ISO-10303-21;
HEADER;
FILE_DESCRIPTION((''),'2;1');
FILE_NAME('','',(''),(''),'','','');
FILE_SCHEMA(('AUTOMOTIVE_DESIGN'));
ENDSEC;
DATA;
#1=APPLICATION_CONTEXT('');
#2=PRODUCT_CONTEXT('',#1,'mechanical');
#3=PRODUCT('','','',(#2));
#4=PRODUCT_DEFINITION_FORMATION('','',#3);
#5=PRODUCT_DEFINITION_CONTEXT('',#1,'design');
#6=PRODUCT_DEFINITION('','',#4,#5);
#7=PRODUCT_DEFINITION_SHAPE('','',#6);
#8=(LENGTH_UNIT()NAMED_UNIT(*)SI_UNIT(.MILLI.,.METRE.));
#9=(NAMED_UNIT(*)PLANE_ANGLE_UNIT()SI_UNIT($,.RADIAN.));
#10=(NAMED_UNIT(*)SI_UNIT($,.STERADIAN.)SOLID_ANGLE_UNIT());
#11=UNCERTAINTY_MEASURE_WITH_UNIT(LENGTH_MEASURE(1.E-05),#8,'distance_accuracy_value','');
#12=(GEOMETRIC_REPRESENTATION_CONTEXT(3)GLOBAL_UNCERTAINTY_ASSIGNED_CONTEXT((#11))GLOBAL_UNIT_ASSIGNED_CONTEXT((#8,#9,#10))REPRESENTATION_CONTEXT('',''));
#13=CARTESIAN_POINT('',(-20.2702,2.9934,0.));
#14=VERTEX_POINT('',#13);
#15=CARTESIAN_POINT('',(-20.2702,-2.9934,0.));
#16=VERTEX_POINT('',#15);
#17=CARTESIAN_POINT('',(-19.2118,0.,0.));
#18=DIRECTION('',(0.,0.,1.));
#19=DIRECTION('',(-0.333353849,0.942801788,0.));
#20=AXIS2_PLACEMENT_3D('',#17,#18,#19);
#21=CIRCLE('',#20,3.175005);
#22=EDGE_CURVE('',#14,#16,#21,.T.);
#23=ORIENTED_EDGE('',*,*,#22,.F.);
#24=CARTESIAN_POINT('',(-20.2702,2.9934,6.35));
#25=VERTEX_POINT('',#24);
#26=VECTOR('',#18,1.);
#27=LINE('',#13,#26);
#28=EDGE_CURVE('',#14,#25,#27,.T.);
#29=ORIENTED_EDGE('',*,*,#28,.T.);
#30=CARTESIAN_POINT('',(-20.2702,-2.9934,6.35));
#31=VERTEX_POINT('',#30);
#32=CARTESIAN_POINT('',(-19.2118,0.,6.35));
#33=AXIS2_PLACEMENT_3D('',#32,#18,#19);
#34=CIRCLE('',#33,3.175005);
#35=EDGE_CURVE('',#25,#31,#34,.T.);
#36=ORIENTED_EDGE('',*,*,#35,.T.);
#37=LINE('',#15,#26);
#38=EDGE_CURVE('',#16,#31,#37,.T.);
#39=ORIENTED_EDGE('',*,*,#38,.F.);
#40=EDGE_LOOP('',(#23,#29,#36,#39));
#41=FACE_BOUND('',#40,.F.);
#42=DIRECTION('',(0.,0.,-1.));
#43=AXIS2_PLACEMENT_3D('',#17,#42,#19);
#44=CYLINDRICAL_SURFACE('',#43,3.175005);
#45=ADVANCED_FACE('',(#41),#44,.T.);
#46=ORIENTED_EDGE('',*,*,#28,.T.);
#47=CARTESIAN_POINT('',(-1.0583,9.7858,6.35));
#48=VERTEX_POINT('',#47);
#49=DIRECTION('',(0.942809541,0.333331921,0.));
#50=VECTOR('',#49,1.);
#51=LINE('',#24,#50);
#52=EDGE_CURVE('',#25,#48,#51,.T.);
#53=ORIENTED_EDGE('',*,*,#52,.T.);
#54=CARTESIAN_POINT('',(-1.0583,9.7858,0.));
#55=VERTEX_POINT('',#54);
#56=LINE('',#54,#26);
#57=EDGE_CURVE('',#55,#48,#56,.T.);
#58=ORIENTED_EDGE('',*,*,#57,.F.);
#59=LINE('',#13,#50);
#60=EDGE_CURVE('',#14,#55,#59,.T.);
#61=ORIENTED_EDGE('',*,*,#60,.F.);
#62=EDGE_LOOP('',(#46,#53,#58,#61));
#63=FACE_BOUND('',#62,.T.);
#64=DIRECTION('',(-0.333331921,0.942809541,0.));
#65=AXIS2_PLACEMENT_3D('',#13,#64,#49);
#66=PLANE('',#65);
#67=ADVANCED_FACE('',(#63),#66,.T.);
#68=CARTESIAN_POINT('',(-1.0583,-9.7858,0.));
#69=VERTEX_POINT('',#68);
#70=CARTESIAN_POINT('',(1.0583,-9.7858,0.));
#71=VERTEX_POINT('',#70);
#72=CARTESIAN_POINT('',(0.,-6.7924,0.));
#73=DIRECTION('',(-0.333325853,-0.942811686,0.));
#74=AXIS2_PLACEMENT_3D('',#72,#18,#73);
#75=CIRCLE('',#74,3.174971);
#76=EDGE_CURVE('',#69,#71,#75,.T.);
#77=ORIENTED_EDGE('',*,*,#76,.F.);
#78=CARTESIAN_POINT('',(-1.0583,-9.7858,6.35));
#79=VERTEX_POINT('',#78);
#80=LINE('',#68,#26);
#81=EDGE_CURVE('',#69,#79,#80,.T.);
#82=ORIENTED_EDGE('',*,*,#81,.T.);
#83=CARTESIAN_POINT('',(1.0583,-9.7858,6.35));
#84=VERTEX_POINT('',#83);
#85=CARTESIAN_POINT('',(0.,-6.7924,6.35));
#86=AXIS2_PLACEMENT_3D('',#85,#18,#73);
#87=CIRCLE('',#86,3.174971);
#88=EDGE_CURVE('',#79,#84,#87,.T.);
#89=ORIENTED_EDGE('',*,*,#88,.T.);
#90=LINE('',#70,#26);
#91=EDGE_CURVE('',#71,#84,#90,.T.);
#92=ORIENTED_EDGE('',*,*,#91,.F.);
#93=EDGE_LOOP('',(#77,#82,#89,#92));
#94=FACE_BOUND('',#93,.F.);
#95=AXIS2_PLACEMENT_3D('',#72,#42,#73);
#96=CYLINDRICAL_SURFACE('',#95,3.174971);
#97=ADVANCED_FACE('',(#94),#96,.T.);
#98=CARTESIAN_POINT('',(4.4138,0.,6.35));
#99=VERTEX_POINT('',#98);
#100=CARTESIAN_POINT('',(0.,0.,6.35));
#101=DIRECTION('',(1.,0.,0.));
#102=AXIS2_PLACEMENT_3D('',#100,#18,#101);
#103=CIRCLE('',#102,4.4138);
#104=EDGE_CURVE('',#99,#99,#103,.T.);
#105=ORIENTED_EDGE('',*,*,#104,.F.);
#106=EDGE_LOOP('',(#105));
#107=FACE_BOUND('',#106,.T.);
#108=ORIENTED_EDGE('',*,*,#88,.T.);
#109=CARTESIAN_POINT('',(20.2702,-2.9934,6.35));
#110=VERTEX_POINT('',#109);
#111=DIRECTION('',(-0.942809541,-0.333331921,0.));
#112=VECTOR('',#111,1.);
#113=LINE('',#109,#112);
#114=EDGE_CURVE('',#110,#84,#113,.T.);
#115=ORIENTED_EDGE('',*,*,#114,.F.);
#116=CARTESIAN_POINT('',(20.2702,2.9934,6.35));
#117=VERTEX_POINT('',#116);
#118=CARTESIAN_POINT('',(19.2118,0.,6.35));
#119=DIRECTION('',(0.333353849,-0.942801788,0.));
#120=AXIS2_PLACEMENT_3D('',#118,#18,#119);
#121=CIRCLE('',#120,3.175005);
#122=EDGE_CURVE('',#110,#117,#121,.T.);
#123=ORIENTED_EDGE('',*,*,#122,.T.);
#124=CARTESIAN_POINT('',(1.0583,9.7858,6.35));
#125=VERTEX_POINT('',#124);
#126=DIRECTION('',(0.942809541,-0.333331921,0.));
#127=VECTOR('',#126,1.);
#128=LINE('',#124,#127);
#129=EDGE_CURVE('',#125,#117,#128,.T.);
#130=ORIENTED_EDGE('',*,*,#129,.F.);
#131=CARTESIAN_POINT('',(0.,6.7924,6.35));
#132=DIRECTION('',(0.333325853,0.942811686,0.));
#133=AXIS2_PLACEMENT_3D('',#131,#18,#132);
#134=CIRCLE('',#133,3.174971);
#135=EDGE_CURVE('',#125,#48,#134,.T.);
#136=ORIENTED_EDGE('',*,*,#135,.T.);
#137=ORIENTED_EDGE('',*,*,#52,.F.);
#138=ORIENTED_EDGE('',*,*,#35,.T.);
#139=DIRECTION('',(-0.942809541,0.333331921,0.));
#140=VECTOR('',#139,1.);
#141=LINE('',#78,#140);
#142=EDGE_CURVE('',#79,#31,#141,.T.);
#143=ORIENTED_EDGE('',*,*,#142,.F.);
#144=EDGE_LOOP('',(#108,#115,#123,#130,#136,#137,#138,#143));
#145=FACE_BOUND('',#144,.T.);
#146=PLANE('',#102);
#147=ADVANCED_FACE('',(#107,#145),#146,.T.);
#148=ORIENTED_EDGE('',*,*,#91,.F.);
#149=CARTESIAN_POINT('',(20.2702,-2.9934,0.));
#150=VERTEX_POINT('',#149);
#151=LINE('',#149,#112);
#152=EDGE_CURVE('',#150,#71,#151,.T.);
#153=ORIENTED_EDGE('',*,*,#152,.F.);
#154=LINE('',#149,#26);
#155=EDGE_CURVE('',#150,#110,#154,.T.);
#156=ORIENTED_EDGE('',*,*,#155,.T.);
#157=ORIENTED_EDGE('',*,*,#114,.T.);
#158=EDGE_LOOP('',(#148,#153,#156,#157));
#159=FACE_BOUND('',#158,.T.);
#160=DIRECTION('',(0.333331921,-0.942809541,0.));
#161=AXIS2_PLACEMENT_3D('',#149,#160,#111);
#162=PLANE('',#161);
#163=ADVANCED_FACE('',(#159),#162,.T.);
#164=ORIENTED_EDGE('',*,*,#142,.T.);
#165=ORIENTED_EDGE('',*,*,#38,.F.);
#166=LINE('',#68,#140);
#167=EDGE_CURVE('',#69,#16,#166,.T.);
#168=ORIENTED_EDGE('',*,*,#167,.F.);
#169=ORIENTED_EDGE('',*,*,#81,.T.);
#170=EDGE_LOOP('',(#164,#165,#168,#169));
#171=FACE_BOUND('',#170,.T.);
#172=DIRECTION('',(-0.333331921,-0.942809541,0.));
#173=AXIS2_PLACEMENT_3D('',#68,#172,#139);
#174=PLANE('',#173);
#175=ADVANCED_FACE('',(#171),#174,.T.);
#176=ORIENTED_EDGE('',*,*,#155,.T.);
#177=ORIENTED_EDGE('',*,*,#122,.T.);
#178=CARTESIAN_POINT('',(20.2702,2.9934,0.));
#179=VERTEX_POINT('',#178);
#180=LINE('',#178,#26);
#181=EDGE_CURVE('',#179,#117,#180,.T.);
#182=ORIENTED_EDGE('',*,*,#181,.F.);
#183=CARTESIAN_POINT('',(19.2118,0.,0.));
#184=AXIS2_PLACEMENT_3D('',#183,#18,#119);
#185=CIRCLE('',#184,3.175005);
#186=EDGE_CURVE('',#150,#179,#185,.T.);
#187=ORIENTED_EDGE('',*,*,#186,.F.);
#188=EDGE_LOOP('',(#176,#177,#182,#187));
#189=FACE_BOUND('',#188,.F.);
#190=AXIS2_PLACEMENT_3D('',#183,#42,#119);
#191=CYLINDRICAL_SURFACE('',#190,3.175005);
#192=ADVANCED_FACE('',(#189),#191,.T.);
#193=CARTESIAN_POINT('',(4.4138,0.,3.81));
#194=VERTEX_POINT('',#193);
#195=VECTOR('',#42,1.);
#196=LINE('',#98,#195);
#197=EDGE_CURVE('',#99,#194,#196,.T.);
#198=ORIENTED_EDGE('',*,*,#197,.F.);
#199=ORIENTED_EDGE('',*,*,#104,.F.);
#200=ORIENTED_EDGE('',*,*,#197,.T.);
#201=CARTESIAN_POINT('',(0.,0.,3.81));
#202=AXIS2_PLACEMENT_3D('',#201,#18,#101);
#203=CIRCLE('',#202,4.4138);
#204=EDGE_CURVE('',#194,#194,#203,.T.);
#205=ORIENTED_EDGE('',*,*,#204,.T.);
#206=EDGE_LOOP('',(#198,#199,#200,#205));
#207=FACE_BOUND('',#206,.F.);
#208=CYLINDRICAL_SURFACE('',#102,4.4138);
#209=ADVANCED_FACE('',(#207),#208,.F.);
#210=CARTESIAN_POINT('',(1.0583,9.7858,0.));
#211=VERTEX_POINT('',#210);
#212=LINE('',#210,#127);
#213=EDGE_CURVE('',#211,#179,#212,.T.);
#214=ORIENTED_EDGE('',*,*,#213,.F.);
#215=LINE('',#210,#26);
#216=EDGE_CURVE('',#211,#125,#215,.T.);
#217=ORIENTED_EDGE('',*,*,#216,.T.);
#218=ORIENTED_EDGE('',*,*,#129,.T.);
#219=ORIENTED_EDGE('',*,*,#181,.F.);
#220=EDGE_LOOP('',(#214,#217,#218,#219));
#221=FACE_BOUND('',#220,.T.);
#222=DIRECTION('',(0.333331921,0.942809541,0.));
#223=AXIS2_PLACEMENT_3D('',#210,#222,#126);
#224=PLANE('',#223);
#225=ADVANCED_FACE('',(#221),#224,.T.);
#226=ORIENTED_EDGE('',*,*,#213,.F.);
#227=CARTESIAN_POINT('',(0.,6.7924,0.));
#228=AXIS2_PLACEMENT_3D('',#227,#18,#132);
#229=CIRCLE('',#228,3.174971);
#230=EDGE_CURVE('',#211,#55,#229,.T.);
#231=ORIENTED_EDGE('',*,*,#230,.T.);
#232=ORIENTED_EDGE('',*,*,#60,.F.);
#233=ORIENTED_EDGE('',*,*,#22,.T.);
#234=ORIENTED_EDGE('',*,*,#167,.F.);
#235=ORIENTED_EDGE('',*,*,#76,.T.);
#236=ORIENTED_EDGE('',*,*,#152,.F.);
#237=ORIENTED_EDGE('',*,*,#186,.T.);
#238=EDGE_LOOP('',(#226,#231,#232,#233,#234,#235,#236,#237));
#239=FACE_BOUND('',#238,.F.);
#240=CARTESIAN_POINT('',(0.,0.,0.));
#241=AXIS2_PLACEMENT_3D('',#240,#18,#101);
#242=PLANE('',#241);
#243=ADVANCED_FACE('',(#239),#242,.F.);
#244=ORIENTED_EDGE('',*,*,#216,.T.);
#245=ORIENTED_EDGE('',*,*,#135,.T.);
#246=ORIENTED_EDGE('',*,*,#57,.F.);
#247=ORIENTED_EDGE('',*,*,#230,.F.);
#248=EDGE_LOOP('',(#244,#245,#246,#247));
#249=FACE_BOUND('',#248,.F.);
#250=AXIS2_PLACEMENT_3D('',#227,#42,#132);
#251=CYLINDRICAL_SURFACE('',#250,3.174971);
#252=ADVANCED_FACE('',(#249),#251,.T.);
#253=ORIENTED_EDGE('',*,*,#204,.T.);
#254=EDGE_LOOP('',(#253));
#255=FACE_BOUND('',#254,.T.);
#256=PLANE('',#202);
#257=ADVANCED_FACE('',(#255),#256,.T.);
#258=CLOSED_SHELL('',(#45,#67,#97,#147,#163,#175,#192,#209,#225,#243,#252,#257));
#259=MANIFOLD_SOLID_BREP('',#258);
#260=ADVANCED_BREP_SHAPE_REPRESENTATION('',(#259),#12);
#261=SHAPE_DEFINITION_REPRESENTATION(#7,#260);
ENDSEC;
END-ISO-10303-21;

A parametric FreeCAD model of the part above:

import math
import FreeCAD as App
import Part
import Sketcher
from FreeCAD import Vector
Q = App.Units.Quantity

doc = App.newDocument("Part")
body = doc.addObject("PartDesign::Body", "Body")

sketch1 = body.newObject("Sketcher::SketchObject", "Sketch")
sketch1.AttachmentSupport = (doc.getObject("XY_Plane"), [""])
sketch1.MapMode = "FlatFace"
sketch1.addGeometry(Part.LineSegment(Vector(20.3, 3, 0), Vector(1.1, 9.8, 0)), False)
sketch1.addGeometry(Part.ArcOfCircle(Part.Circle(Vector(0, 6.8, 0), Vector(0, 0, 1), 3.2), math.radians(71), math.radians(109)), False)
sketch1.addGeometry(Part.LineSegment(Vector(-1.1, 9.8, 0), Vector(-20.3, 3, 0)), False)
sketch1.addGeometry(Part.ArcOfCircle(Part.Circle(Vector(-19.2, 0, 0), Vector(0, 0, 1), 3.2), math.radians(109), math.radians(251)), False)
sketch1.addGeometry(Part.LineSegment(Vector(-20.3, -3, 0), Vector(-1.1, -9.8, 0)), False)
sketch1.addGeometry(Part.ArcOfCircle(Part.Circle(Vector(0, -6.8, 0), Vector(0, 0, 1), 3.2), math.radians(-109), math.radians(-71)), False)
sketch1.addGeometry(Part.LineSegment(Vector(1.1, -9.8, 0), Vector(20.3, -3, 0)), False)
sketch1.addGeometry(Part.ArcOfCircle(Part.Circle(Vector(19.2, 0, 0), Vector(0, 0, 1), 3.2), math.radians(-71), math.radians(71)), False)
sketch1.addConstraint(Sketcher.Constraint("Tangent", 0, 2, 1, 1))
sketch1.addConstraint(Sketcher.Constraint("Tangent", 1, 2, 2, 1))
sketch1.addConstraint(Sketcher.Constraint("Tangent", 2, 2, 3, 1))
sketch1.addConstraint(Sketcher.Constraint("Tangent", 3, 2, 4, 1))
sketch1.addConstraint(Sketcher.Constraint("Tangent", 4, 2, 5, 1))
sketch1.addConstraint(Sketcher.Constraint("Tangent", 5, 2, 6, 1))
sketch1.addConstraint(Sketcher.Constraint("Tangent", 6, 2, 7, 1))
sketch1.addConstraint(Sketcher.Constraint("Tangent", 7, 2, 0, 1))
sketch1.addConstraint(Sketcher.Constraint("Equal", 1, 3))
sketch1.addConstraint(Sketcher.Constraint("Equal", 3, 5))
sketch1.addConstraint(Sketcher.Constraint("Equal", 5, 7))
sketch1.addConstraint(Sketcher.Constraint("Symmetric", 1, 3, 5, 3, -1, 1))
sketch1.addConstraint(Sketcher.Constraint("Symmetric", 3, 3, 7, 3, -1, 1))
sketch1.addConstraint(Sketcher.Constraint("Symmetric", 0, 2, 1, 2, -2))
sketch1.addConstraint(Sketcher.Constraint("Radius", 1, Q("0.125 in")))
sketch1.addConstraint(Sketcher.Constraint("Angle", 0, Q("160.5289 deg")))
sketch1.addConstraint(Sketcher.Constraint("DistanceX", 0, 2, 7, 3, Q("0.7147 in")))
pad1 = body.newObject("PartDesign::Pad", "Pad")
pad1.Profile = sketch1
pad1.Length = Q("0.25 in")

sketch2 = body.newObject("Sketcher::SketchObject", "Sketch001")
sketch2.AttachmentSupport = (doc.getObject("XY_Plane"), [""])
sketch2.MapMode = "FlatFace"
sketch2.AttachmentOffset = App.Placement(Vector(0, 0, 0.25 * 25.4), App.Rotation())
sketch2.addGeometry(Part.Circle(Vector(0, 0, 0), Vector(0, 0, 1), 4.4), False)
sketch2.addConstraint(Sketcher.Constraint("Coincident", 0, 3, -1, 1))
sketch2.addConstraint(Sketcher.Constraint("Diameter", 0, 8.8276))
pocket1 = body.newObject("PartDesign::Pocket", "Pocket")
pocket1.Profile = sketch2
pocket1.Length = Q("0.1 in")

doc.recompute()
